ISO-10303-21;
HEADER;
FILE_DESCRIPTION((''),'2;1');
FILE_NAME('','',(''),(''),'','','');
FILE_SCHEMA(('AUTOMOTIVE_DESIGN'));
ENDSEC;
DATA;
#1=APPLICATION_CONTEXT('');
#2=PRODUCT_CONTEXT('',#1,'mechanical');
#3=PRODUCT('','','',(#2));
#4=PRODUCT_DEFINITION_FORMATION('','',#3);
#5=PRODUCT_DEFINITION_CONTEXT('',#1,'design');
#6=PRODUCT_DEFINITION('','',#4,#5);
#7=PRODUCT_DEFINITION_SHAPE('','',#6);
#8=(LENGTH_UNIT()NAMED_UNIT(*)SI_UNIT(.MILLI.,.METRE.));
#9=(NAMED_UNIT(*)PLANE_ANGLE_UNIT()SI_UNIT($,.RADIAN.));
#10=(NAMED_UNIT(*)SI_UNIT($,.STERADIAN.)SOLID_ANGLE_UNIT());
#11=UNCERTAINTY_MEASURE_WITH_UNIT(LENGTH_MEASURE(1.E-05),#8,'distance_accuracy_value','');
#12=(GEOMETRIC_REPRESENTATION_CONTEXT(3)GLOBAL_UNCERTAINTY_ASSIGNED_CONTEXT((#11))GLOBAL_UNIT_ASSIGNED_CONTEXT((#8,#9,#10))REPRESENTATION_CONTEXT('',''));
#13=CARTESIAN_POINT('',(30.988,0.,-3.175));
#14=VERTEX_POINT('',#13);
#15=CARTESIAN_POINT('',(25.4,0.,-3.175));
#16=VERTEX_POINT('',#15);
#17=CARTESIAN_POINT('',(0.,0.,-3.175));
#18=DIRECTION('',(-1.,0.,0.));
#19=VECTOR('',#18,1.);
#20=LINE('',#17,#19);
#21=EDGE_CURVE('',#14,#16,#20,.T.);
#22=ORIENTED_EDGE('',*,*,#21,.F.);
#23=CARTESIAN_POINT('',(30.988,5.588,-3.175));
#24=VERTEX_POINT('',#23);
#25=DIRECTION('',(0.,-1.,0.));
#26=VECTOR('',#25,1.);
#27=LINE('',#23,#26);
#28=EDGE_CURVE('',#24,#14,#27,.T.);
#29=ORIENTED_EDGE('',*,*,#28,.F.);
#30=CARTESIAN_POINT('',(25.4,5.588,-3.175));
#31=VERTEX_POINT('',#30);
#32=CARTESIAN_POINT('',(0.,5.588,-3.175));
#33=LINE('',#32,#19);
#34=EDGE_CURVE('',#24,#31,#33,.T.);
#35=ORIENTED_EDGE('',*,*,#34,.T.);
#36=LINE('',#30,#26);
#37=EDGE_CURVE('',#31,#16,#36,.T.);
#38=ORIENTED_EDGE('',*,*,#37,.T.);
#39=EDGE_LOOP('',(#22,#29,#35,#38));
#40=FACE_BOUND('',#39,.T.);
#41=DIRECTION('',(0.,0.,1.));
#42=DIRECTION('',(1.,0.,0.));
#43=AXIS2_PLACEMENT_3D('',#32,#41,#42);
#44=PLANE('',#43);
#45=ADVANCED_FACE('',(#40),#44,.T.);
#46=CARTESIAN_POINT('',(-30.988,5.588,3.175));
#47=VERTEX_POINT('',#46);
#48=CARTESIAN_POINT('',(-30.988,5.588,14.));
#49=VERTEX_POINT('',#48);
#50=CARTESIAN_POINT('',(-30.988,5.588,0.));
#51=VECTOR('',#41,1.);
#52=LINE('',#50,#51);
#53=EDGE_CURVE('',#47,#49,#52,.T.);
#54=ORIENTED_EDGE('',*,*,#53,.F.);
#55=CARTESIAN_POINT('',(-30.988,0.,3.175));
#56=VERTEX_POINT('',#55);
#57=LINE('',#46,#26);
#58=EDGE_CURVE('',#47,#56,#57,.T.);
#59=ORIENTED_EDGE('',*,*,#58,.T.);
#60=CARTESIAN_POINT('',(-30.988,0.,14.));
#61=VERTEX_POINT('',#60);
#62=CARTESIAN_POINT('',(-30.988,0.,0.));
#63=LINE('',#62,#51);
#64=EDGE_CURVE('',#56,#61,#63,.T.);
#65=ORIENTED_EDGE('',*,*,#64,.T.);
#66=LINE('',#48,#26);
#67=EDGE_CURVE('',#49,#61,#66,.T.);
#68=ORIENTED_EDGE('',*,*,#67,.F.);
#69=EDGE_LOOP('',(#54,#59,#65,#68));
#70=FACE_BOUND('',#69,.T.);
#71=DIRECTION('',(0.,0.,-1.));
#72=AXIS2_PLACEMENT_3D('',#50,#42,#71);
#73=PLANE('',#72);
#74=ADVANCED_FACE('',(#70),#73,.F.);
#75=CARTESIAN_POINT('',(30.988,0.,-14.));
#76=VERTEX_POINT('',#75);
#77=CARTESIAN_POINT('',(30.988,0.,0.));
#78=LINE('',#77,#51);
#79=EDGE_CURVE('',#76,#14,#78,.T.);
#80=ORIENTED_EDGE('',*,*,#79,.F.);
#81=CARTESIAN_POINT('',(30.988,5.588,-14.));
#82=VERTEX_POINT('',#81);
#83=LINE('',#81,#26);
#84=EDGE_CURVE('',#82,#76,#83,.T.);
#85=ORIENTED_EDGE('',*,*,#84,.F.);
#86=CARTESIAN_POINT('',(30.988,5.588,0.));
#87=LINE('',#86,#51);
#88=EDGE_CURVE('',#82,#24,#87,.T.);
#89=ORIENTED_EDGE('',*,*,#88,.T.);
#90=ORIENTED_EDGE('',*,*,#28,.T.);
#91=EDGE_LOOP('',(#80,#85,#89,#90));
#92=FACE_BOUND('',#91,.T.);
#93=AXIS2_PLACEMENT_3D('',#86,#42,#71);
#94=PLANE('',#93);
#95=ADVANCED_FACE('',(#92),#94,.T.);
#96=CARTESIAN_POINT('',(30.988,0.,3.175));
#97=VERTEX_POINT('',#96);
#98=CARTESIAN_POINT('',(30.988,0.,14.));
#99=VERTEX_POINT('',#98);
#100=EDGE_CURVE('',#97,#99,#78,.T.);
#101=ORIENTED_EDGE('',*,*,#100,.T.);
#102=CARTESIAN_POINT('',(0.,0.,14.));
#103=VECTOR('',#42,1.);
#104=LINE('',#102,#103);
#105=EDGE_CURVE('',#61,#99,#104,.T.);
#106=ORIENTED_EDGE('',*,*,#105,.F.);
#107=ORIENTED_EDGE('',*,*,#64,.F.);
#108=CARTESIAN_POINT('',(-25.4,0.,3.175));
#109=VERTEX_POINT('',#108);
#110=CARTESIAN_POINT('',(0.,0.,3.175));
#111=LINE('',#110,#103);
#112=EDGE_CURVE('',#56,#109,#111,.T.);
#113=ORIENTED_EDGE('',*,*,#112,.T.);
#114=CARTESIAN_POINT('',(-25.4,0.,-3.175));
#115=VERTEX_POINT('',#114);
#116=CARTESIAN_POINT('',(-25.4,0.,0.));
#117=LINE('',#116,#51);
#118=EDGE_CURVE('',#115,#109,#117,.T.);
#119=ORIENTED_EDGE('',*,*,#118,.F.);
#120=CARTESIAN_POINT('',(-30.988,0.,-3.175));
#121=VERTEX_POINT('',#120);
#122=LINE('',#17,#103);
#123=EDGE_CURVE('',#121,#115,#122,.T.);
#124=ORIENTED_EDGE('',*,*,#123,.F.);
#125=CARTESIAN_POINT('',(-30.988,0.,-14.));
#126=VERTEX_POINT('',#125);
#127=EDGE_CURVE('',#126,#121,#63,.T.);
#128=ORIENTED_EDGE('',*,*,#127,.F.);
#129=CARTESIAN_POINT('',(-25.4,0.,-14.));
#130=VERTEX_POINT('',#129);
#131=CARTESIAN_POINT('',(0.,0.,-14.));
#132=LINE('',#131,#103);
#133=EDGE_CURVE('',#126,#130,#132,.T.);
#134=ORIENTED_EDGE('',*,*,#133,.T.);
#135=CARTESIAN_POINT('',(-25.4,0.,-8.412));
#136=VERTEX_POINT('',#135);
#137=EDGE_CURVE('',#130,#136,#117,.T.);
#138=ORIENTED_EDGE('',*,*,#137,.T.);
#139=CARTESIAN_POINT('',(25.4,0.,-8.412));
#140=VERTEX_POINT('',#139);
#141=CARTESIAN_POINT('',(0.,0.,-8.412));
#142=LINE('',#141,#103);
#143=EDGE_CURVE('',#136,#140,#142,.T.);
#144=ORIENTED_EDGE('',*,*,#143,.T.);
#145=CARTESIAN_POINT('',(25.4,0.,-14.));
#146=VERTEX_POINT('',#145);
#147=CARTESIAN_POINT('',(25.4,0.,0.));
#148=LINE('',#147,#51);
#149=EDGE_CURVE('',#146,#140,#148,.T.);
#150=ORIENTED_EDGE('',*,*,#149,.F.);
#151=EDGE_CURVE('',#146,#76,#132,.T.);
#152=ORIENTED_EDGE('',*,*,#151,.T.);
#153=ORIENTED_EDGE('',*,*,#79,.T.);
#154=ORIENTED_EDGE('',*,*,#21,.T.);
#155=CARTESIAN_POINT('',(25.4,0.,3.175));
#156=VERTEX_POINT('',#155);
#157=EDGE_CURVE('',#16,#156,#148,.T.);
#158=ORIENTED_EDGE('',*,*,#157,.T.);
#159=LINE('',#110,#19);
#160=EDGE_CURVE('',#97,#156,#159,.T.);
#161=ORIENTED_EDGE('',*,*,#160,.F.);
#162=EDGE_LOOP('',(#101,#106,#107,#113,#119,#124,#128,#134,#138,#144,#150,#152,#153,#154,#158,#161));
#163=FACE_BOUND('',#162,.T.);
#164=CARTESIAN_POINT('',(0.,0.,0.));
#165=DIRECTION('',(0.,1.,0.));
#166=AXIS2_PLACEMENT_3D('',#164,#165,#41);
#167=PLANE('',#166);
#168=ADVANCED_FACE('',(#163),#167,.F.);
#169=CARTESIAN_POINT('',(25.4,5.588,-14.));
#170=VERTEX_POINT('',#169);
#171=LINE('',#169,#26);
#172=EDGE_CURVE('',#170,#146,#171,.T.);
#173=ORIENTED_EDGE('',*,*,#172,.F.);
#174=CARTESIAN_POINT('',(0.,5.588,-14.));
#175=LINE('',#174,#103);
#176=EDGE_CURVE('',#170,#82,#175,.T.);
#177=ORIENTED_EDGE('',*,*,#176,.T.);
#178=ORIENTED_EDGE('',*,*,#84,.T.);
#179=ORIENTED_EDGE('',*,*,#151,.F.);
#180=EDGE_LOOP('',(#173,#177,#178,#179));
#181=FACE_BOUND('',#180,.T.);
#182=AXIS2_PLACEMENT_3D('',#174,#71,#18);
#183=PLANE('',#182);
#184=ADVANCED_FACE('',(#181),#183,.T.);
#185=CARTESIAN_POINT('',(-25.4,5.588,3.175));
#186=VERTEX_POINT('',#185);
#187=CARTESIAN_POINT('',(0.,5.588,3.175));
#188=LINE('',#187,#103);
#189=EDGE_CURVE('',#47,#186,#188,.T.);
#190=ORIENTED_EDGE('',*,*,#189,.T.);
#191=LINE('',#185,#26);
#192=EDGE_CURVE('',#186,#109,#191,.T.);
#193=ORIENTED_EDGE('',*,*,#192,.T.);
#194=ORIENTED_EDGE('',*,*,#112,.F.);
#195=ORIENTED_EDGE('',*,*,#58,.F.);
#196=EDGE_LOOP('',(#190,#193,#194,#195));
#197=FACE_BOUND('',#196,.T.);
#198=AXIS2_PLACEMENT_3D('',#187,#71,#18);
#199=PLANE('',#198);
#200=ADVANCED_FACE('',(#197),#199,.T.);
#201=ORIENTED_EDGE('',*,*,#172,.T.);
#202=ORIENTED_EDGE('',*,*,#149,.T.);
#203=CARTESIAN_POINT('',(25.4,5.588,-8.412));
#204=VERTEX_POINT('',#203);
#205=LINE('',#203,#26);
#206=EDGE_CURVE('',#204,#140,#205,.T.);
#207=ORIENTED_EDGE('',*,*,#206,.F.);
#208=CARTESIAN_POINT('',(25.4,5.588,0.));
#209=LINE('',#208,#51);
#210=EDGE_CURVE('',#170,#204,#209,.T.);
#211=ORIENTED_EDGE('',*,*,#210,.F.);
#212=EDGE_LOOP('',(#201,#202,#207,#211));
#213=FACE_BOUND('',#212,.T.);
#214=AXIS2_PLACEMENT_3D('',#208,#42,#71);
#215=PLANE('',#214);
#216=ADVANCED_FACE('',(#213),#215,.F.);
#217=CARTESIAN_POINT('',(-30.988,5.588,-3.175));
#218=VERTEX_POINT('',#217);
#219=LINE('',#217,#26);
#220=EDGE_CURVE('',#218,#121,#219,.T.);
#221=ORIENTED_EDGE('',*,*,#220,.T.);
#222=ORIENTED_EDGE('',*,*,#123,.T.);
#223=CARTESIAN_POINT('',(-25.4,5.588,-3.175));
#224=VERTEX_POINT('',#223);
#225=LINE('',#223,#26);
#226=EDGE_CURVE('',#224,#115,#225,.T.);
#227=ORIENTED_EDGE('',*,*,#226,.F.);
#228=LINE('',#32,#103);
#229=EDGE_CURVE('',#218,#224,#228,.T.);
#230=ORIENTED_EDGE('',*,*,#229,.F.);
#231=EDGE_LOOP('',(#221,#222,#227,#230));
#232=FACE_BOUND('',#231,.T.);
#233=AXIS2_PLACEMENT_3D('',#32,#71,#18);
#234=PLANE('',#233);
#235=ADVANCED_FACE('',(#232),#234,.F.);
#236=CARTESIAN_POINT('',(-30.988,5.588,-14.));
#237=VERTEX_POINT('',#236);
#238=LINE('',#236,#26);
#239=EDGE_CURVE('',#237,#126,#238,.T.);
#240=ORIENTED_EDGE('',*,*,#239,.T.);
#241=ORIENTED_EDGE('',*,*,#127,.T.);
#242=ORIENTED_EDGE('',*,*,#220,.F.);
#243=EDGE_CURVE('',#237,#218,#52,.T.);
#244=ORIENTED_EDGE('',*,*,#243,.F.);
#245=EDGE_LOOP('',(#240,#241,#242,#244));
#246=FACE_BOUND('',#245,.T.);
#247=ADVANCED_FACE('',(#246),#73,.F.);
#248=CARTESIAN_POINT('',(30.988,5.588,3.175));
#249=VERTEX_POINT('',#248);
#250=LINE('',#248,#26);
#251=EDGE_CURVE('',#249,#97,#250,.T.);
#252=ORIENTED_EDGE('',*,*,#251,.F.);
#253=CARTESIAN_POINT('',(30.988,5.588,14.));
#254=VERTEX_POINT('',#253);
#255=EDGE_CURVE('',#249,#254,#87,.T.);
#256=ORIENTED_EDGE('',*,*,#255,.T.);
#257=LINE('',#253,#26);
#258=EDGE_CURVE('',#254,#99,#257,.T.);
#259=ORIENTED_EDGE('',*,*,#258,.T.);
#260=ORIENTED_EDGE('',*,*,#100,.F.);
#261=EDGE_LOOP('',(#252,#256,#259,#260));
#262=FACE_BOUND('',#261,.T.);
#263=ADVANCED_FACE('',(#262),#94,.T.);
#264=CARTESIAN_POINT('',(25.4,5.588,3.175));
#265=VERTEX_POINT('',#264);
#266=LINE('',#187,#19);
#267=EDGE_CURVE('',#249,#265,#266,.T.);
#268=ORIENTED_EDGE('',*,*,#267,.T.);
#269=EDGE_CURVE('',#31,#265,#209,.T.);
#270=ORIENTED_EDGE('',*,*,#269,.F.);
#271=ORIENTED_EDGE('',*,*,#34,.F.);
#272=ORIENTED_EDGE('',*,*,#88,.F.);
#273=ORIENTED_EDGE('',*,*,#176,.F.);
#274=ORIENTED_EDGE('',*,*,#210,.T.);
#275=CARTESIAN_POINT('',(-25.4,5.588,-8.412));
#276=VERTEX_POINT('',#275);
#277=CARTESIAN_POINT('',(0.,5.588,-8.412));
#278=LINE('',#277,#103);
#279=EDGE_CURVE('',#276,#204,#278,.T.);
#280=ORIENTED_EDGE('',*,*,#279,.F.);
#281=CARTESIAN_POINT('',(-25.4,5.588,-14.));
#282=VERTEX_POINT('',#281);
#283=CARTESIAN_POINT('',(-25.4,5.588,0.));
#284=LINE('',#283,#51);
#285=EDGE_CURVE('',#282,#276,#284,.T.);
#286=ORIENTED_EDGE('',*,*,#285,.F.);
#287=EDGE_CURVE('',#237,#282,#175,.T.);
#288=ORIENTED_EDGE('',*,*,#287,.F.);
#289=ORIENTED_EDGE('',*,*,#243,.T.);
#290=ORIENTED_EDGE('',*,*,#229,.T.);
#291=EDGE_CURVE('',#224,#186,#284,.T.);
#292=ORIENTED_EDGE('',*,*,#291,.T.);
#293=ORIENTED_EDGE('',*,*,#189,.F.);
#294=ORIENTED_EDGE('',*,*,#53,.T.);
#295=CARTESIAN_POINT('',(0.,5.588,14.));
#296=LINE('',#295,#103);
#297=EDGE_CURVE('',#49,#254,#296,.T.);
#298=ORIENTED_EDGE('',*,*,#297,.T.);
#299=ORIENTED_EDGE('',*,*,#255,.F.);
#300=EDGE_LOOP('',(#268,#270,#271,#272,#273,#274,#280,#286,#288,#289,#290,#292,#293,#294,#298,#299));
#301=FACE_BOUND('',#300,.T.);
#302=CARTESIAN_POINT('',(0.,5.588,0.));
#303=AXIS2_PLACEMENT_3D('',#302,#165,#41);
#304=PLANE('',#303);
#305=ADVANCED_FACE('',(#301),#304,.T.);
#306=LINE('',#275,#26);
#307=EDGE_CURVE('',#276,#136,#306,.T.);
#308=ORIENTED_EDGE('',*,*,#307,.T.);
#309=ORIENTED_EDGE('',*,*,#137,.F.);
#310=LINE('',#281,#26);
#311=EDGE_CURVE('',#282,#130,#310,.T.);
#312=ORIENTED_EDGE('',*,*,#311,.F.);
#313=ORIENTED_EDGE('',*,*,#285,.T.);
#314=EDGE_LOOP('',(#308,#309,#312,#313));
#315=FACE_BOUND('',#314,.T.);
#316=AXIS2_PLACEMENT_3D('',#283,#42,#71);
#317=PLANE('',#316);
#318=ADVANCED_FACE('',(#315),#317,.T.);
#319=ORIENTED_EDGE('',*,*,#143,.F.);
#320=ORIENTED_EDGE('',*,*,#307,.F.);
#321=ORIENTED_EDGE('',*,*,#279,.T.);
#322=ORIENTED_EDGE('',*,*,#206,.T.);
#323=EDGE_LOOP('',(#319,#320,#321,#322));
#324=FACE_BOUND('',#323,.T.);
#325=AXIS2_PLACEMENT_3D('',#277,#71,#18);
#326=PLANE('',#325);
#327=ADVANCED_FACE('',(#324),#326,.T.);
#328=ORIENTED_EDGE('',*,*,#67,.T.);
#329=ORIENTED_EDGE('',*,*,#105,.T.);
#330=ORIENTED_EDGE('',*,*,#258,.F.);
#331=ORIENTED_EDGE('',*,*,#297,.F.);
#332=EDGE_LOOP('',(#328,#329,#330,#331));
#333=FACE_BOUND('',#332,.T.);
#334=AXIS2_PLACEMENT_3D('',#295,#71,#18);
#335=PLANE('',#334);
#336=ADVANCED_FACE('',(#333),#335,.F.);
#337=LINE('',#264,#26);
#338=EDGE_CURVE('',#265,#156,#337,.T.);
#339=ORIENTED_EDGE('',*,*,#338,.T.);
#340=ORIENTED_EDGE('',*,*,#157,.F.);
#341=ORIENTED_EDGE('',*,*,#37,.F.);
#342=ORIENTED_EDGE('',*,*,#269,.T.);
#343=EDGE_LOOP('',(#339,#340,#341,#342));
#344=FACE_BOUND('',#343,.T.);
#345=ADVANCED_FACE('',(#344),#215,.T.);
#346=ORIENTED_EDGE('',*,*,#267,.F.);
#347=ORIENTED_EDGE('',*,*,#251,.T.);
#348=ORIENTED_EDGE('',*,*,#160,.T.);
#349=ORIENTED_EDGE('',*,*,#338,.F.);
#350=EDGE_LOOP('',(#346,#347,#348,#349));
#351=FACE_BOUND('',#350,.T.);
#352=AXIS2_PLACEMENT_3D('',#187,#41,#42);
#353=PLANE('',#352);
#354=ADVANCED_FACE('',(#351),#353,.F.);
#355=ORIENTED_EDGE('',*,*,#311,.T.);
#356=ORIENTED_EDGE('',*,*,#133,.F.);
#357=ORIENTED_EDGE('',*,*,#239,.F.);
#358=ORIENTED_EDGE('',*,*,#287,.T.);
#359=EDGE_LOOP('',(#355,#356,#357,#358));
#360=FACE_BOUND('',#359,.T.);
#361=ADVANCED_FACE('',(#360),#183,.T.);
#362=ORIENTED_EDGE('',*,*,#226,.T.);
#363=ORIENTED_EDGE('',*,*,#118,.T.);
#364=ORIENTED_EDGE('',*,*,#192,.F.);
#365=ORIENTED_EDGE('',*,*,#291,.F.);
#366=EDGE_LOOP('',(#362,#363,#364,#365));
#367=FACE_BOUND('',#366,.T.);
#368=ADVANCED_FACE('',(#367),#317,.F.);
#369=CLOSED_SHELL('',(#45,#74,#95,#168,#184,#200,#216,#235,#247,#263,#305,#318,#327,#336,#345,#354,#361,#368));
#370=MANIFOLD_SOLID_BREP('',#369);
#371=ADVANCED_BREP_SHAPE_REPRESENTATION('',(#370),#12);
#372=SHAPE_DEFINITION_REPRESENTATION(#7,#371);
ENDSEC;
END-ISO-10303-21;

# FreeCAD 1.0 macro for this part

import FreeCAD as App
import Part
import Sketcher
from FreeCAD import Vector
Q = App.Units.Quantity

doc = App.newDocument("Part")
body = doc.addObject("PartDesign::Body", "Body")

sketch1 = body.newObject("Sketcher::SketchObject", "Sketch")
sketch1.AttachmentSupport = (doc.getObject("XZ_Plane"), [""])
sketch1.MapMode = "FlatFace"
sketch1.addGeometry([
    Part.LineSegment(Vector(-25, -14, 0), Vector(-31, -14, 0)),
    Part.LineSegment(Vector(-31, -14, 0), Vector(-31, -3, 0)),
    Part.LineSegment(Vector(-31, -3, 0), Vector(-25, -3, 0)),
    Part.LineSegment(Vector(-25, -3, 0), Vector(-25, 3, 0)),
    Part.LineSegment(Vector(-25, 3, 0), Vector(-31, 3, 0)),
    Part.LineSegment(Vector(-31, 3, 0), Vector(-31, 14, 0)),
    Part.LineSegment(Vector(-31, 14, 0), Vector(31, 14, 0)),
    Part.LineSegment(Vector(31, 14, 0), Vector(31, 3, 0)),
    Part.LineSegment(Vector(31, 3, 0), Vector(25, 3, 0)),
    Part.LineSegment(Vector(25, 3, 0), Vector(25, -3, 0)),
    Part.LineSegment(Vector(25, -3, 0), Vector(31, -3, 0)),
    Part.LineSegment(Vector(31, -3, 0), Vector(31, -14, 0)),
    Part.LineSegment(Vector(31, -14, 0), Vector(25, -14, 0)),
    Part.LineSegment(Vector(25, -14, 0), Vector(25, -8, 0)),
    Part.LineSegment(Vector(25, -8, 0), Vector(-25, -8, 0)),
    Part.LineSegment(Vector(-25, -8, 0), Vector(-25, -14, 0)),
], False)
sketch1.addConstraint([
    Sketcher.Constraint("Coincident", 0, 2, 1, 1),
    Sketcher.Constraint("Coincident", 1, 2, 2, 1),
    Sketcher.Constraint("Coincident", 2, 2, 3, 1),
    Sketcher.Constraint("Coincident", 3, 2, 4, 1),
    Sketcher.Constraint("Coincident", 4, 2, 5, 1),
    Sketcher.Constraint("Coincident", 5, 2, 6, 1),
    Sketcher.Constraint("Coincident", 6, 2, 7, 1),
    Sketcher.Constraint("Coincident", 7, 2, 8, 1),
    Sketcher.Constraint("Coincident", 8, 2, 9, 1),
    Sketcher.Constraint("Coincident", 9, 2, 10, 1),
    Sketcher.Constraint("Coincident", 10, 2, 11, 1),
    Sketcher.Constraint("Coincident", 11, 2, 12, 1),
    Sketcher.Constraint("Coincident", 12, 2, 13, 1),
    Sketcher.Constraint("Coincident", 13, 2, 14, 1),
    Sketcher.Constraint("Coincident", 14, 2, 15, 1),
    Sketcher.Constraint("Coincident", 15, 2, 0, 1),
    Sketcher.Constraint("Horizontal", 0),
    Sketcher.Constraint("Vertical", 1),
    Sketcher.Constraint("Horizontal", 2),
    Sketcher.Constraint("Vertical", 3),
    Sketcher.Constraint("Horizontal", 4),
    Sketcher.Constraint("Vertical", 5),
    Sketcher.Constraint("Horizontal", 6),
    Sketcher.Constraint("Vertical", 7),
    Sketcher.Constraint("Horizontal", 8),
    Sketcher.Constraint("Vertical", 9),
    Sketcher.Constraint("Horizontal", 10),
    Sketcher.Constraint("Vertical", 11),
    Sketcher.Constraint("Horizontal", 12),
    Sketcher.Constraint("Vertical", 13),
    Sketcher.Constraint("Horizontal", 14),
    Sketcher.Constraint("Vertical", 15),
    Sketcher.Constraint("Symmetric", 0, 2, 6, 2, -1, 1),
    Sketcher.Constraint("Symmetric", 2, 2, 8, 2, -1, 1),
    Sketcher.Constraint("Symmetric", 4, 2, 10, 2, -1, 1),
    Sketcher.Constraint("Symmetric", 4, 2, 7, 2, -2),
    Sketcher.Constraint("Symmetric", 12, 2, 15, 2, -2),
    Sketcher.Constraint("Vertical", 9, 2, 12, 2),
    Sketcher.Constraint("Equal", 12, 13),
    Sketcher.Constraint("DistanceX", 14, 2, 14, 1, Q("2 in")),
    Sketcher.Constraint("DistanceX", 0, 2, 0, 1, Q("0.22 in")),
    Sketcher.Constraint("DistanceY", 3, 1, 3, 2, Q("0.25 in")),
    Sketcher.Constraint("DistanceY", 1, 1, 1, 2, 10.825),
])
pad1 = body.newObject("PartDesign::Pad", "Pad")
pad1.Profile = sketch1
pad1.Length = Q("0.22 in")
pad1.Reversed = True

doc.recompute()
